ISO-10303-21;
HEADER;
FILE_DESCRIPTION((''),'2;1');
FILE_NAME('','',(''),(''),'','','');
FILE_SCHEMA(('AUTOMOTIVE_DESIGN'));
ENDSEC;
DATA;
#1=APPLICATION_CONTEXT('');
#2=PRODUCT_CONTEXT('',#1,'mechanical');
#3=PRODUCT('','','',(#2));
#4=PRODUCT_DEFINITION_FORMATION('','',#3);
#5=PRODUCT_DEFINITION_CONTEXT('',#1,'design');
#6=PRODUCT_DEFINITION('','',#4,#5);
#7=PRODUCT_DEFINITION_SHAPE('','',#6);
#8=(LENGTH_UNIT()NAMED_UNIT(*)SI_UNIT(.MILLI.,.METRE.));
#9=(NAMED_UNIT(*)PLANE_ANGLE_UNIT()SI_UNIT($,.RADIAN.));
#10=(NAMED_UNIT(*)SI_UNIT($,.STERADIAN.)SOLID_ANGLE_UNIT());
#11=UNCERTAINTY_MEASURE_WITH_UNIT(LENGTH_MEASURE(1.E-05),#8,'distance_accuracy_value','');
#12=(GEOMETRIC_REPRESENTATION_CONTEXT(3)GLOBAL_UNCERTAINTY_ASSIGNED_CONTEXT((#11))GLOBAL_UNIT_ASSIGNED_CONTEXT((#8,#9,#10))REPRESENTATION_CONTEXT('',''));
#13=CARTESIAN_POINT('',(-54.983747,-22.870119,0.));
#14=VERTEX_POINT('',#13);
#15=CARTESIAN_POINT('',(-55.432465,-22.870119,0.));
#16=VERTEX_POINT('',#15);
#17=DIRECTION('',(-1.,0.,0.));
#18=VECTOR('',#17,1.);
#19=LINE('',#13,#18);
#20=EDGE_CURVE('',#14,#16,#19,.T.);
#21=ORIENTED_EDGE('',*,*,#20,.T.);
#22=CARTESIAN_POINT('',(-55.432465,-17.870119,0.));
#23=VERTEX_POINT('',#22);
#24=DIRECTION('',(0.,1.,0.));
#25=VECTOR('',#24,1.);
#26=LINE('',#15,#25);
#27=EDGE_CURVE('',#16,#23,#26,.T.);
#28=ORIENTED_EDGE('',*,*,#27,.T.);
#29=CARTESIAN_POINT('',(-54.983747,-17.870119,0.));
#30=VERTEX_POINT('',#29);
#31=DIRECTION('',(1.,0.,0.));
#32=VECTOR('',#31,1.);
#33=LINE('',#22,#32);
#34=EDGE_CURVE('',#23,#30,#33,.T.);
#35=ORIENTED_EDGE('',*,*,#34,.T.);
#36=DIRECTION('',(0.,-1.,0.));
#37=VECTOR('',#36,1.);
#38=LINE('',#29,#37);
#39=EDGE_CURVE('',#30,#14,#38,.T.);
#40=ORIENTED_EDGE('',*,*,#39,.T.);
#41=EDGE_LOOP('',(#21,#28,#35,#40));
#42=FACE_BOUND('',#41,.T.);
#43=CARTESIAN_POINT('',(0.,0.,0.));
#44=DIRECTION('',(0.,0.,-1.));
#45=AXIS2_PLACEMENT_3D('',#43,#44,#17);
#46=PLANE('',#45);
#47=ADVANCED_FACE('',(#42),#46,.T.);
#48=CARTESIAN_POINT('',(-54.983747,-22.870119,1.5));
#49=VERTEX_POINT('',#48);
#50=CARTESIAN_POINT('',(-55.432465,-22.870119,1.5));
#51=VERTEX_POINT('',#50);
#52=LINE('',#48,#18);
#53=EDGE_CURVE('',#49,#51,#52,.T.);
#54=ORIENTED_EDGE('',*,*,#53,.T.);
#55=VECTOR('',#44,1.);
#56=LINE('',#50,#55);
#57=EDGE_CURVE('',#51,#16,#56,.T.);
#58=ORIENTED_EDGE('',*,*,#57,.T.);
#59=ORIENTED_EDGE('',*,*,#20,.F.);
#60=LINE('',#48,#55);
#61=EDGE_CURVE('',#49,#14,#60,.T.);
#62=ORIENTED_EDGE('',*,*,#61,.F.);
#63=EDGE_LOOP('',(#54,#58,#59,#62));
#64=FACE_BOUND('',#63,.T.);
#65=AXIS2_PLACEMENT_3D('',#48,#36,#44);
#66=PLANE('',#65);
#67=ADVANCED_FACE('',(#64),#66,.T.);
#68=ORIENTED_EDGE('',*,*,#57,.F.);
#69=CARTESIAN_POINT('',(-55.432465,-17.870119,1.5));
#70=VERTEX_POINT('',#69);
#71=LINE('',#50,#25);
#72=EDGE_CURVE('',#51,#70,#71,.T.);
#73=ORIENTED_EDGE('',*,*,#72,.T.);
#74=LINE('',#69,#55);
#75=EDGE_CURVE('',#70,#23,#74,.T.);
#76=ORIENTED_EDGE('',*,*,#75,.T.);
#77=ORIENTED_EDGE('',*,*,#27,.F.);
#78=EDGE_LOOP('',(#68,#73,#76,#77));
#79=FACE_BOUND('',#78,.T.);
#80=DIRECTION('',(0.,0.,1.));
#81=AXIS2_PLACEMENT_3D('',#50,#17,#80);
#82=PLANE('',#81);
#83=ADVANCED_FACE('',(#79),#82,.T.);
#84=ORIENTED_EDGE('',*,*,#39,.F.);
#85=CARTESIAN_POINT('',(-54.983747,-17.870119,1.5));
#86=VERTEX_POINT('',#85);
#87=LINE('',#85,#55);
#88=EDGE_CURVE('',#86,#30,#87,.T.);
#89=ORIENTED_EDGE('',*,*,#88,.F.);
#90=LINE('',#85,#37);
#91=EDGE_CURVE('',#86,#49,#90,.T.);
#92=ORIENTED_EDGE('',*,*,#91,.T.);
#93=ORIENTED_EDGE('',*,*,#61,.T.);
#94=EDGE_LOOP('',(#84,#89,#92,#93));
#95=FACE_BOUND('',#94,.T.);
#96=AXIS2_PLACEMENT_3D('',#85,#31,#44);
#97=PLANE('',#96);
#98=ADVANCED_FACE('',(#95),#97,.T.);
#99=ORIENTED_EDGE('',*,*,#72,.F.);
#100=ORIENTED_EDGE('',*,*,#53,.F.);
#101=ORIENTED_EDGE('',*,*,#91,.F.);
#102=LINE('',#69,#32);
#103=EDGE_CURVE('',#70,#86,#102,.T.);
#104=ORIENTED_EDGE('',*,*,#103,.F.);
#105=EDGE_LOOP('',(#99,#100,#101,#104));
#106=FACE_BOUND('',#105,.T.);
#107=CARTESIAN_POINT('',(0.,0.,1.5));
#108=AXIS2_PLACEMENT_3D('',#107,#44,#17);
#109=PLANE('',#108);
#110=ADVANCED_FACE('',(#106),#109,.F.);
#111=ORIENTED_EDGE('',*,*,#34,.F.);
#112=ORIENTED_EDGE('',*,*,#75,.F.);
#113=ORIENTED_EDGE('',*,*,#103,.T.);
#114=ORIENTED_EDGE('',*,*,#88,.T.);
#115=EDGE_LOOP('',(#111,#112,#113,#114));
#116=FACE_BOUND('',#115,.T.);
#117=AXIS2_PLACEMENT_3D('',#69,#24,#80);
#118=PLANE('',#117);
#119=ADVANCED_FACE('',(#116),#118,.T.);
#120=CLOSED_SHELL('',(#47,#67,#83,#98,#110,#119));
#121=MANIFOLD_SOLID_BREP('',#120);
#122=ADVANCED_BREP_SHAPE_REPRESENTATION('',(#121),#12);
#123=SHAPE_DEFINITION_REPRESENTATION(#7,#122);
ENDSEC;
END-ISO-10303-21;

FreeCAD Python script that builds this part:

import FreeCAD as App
import Part
import Sketcher
from FreeCAD import Vector
Q = App.Units.Quantity


def add_polygon(sketch, points):
    """Adds a closed chain of lines whose ends are joined by coincident constraints."""
    first, n = sketch.GeometryCount, len(points)
    for a, b in zip(points, points[1:] + points[:1]):
        sketch.addGeometry(Part.LineSegment(App.Vector(*a, 0), App.Vector(*b, 0)), False)
    for i in range(n):
        sketch.addConstraint(Sketcher.Constraint("Coincident", first + i, 2, first + (i + 1) % n, 1))

doc = App.newDocument("Part")
body = doc.addObject("PartDesign::Body", "Body")

# Sketch on XY plane
sketch1 = body.newObject("Sketcher::SketchObject", "Sketch")
sketch1.AttachmentSupport = (doc.getObject("XY_Plane"), [""])
sketch1.MapMode = "FlatFace"
add_polygon(sketch1, [(-55.432465, -17.870119), (-55.432465, -22.870119), (-54.983747, -22.870119), (-54.983747, -17.870119)])  # lines 0-3
sketch1.addConstraint(Sketcher.Constraint("Vertical", 0))
sketch1.addConstraint(Sketcher.Constraint("Horizontal", 1))
sketch1.addConstraint(Sketcher.Constraint("Vertical", 2))
sketch1.addConstraint(Sketcher.Constraint("Horizontal", 3))
sketch1.addConstraint(Sketcher.Constraint("DistanceY", 0, 2, 0, 1, Q("5 mm")))
sketch1.addConstraint(Sketcher.Constraint("DistanceX", 1, 1, 1, 2, Q("0.448718 mm")))
sketch1.addConstraint(Sketcher.Constraint("DistanceY", 0, 2, -1, 1, Q("22.870119 mm")))
sketch1.addConstraint(Sketcher.Constraint("DistanceX", 0, 2, -1, 1, Q("55.432465 mm")))
pad1 = body.newObject("PartDesign::Pad", "Pad")
pad1.Profile = sketch1
pad1.Length = 1.5

doc.recompute()
